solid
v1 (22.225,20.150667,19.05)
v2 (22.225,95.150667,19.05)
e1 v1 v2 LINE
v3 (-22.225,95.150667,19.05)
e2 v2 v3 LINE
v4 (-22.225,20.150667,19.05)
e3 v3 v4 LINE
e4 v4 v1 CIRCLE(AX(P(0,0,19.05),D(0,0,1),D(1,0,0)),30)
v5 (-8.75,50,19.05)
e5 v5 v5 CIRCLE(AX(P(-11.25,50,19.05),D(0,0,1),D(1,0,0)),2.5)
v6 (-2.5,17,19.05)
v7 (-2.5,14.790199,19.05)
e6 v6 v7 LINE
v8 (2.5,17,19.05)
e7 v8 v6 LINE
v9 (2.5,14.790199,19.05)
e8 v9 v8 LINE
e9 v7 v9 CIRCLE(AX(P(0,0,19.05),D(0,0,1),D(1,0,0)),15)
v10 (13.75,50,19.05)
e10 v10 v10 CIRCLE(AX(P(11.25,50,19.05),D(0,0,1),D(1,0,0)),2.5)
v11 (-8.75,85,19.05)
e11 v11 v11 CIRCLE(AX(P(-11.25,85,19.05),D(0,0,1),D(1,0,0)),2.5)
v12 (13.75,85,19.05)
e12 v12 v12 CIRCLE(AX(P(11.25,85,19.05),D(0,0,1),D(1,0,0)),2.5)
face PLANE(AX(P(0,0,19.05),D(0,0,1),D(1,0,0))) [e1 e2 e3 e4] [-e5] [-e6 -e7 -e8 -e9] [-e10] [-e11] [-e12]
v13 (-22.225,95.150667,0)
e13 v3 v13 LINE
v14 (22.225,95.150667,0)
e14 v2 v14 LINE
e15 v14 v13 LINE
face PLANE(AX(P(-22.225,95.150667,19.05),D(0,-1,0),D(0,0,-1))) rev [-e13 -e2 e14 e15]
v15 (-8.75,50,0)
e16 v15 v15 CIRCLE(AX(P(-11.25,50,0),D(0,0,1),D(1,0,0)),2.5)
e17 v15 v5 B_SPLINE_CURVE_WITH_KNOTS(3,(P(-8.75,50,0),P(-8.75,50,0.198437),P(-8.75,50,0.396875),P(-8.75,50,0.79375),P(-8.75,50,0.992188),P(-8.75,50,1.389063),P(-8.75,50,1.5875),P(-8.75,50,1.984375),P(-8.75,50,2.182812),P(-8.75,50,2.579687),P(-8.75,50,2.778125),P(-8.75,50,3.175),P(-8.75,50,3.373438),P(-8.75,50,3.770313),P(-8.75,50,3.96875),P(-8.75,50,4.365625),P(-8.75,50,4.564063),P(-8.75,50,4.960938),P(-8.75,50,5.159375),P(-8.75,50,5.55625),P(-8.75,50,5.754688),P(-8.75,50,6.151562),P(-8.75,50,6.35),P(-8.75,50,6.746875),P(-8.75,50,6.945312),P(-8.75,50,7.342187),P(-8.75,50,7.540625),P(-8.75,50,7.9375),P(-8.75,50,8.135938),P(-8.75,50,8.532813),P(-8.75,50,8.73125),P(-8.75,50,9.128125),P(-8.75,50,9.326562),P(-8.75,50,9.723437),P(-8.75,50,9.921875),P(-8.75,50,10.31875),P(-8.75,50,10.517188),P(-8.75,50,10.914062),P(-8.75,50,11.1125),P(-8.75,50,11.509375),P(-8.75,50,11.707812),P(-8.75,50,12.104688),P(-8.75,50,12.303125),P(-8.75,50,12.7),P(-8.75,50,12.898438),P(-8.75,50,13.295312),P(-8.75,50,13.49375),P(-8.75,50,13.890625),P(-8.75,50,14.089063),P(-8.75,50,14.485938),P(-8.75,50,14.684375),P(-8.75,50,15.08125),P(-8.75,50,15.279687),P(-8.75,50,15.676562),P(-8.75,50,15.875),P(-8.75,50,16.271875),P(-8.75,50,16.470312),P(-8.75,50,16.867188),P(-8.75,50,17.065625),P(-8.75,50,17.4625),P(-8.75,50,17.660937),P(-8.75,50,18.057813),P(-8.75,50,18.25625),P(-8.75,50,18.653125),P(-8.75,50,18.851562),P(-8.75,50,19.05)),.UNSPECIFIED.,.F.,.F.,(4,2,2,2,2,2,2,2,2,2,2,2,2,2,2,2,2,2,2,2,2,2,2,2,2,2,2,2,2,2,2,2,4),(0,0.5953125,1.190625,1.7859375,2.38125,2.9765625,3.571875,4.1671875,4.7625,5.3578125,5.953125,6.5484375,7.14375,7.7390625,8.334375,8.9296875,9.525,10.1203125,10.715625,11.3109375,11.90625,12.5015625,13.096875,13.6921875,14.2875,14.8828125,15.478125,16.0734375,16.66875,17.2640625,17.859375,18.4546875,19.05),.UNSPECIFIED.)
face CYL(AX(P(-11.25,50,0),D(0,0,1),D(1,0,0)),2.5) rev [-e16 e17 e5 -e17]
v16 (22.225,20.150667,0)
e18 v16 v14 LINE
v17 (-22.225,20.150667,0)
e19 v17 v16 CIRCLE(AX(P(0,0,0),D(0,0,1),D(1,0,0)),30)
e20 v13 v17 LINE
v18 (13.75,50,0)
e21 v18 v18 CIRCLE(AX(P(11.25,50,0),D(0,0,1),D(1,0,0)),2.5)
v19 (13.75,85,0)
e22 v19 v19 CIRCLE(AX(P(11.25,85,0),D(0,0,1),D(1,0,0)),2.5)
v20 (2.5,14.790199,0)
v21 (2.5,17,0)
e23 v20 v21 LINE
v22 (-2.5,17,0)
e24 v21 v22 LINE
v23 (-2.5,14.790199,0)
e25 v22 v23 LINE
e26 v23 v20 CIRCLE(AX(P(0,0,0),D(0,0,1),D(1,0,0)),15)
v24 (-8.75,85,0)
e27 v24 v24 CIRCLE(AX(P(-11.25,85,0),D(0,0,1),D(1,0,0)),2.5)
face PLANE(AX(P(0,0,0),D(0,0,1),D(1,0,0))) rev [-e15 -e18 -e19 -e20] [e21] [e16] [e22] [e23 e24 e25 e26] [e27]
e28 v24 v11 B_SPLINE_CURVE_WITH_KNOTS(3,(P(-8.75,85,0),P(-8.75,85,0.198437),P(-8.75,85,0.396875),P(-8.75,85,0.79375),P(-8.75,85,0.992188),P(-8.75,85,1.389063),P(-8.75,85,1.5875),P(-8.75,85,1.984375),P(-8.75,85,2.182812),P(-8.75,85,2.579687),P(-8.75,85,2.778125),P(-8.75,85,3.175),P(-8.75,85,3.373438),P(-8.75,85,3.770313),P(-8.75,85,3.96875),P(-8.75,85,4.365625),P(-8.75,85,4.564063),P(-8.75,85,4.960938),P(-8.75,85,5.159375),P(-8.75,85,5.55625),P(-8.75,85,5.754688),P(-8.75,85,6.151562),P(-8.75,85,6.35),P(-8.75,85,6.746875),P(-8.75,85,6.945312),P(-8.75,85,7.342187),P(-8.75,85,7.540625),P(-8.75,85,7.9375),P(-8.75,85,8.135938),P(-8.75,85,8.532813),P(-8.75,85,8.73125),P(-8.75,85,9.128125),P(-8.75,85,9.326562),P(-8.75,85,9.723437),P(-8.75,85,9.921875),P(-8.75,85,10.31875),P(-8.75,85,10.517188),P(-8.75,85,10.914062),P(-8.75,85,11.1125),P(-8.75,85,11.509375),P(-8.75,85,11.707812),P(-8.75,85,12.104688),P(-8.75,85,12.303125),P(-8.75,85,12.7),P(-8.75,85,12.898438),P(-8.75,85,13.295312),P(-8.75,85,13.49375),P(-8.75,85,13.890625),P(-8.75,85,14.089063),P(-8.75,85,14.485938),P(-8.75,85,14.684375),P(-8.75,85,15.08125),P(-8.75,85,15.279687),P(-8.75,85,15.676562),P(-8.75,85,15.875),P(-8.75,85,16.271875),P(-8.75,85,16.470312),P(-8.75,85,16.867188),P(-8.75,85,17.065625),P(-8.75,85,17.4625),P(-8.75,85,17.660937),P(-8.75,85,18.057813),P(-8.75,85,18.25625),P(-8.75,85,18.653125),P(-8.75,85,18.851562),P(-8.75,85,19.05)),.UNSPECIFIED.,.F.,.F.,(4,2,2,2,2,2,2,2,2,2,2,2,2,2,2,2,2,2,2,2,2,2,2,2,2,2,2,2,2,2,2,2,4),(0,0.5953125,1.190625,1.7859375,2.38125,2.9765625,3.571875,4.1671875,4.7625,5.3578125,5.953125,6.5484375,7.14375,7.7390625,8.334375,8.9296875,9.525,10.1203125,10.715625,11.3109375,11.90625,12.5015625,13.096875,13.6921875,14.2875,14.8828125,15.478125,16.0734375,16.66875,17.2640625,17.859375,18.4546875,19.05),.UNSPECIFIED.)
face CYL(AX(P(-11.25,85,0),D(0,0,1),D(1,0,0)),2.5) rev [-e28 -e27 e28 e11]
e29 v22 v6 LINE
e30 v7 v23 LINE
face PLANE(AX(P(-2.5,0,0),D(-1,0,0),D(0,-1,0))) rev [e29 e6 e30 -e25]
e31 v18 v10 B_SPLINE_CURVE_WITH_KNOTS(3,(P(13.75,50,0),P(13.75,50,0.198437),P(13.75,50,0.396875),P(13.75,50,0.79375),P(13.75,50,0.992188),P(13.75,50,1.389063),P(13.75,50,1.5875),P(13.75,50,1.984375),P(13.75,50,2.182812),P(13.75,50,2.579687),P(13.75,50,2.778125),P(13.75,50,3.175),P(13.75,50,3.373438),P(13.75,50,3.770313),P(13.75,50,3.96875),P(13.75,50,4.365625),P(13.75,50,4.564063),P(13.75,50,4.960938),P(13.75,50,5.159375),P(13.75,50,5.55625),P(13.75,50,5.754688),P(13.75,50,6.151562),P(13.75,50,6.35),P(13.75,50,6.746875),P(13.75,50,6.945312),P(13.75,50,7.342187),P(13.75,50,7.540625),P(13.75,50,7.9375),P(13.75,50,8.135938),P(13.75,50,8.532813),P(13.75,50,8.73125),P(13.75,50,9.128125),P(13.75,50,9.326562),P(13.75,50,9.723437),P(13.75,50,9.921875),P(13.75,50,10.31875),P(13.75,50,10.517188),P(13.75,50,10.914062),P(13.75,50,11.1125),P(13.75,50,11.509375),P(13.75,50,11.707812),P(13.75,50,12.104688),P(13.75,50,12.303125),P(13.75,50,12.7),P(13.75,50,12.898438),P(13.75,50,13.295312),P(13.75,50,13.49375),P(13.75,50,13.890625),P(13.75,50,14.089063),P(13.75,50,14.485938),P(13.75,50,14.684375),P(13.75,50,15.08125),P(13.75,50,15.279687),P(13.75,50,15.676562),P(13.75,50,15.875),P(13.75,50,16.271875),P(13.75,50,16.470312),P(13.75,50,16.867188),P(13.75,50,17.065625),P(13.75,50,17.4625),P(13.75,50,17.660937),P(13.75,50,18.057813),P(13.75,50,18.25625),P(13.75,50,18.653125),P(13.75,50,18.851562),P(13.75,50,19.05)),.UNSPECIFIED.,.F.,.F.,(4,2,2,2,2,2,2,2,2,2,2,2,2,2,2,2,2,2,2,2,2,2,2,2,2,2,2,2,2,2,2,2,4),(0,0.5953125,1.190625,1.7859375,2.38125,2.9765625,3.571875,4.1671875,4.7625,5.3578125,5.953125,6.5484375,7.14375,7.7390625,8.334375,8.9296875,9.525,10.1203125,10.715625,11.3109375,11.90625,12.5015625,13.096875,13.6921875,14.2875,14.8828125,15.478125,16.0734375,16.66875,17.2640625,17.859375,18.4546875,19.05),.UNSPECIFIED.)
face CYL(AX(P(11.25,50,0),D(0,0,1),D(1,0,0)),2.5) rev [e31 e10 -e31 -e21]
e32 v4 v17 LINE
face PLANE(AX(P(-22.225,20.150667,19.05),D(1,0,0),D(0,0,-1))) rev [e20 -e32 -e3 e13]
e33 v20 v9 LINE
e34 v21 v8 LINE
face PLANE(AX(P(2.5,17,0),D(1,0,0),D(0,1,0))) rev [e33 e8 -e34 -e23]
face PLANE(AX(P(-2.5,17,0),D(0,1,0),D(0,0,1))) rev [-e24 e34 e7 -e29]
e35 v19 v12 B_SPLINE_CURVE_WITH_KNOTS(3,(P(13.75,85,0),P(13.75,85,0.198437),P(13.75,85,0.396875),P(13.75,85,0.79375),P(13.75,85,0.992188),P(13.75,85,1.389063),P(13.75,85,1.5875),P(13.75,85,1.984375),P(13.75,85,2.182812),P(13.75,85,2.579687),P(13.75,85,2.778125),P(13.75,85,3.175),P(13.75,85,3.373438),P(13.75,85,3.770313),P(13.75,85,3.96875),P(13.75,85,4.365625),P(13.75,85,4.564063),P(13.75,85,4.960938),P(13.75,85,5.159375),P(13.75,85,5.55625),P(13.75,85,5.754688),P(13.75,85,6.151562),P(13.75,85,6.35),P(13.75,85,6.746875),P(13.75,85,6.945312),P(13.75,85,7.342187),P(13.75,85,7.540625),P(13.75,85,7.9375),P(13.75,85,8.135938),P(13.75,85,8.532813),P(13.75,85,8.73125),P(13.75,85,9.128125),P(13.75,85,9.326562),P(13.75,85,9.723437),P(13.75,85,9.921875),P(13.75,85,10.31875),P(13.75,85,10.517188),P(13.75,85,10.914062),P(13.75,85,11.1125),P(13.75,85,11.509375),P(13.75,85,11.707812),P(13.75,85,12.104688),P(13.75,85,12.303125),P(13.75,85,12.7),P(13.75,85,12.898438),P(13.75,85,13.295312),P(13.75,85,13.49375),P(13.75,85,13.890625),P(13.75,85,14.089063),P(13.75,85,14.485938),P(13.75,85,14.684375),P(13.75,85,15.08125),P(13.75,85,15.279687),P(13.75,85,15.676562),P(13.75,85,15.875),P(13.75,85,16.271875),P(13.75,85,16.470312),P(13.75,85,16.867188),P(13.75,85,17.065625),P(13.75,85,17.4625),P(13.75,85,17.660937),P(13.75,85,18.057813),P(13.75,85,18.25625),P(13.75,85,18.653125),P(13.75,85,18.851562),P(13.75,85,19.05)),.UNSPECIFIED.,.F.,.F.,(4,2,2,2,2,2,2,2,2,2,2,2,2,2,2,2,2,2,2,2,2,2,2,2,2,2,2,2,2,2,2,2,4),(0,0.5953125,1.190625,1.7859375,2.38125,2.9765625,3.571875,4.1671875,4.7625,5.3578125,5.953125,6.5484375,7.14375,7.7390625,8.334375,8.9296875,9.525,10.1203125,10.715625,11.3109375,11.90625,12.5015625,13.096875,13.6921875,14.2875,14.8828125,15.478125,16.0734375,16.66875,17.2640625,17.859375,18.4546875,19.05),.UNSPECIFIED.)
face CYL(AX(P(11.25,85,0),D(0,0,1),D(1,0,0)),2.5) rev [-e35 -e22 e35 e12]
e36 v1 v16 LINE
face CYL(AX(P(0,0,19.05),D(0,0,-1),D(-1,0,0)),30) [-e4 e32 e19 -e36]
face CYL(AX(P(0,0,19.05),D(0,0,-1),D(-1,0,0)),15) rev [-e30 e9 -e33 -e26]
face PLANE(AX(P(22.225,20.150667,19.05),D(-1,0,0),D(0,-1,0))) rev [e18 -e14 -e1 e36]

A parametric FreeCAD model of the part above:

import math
import FreeCAD as App
import Part
import Sketcher
Q = App.Units.Quantity

doc = App.newDocument("Part")
body = doc.addObject("PartDesign::Body", "Body")

# Sketch on XY plane
sketch1 = body.newObject("Sketcher::SketchObject", "Sketch")
sketch1.AttachmentSupport = (doc.getObject("XY_Plane"), [""])
sketch1.MapMode = "FlatFace"
sketch1.addGeometry(Part.LineSegment(App.Vector(-22.225, 95.150667, 0), App.Vector(-22.225, 20.150667, 0)), False)
sketch1.addGeometry(Part.ArcOfCircle(Part.Circle(App.Vector(0, 0, 0), App.Vector(0, 0, 1), 30), math.radians(137.802451), math.radians(402.197549)), False)
sketch1.addGeometry(Part.LineSegment(App.Vector(22.225, 20.150667, 0), App.Vector(22.225, 95.150667, 0)), False)
sketch1.addGeometry(Part.LineSegment(App.Vector(22.225, 95.150667, 0), App.Vector(-22.225, 95.150667, 0)), False)
sketch1.addGeometry(Part.Circle(App.Vector(0, 0, 0), App.Vector(0, 0, 1), 15), False)
sketch1.addConstraint(Sketcher.Constraint("Coincident", 0, 2, 1, 1))
sketch1.addConstraint(Sketcher.Constraint("Coincident", 1, 2, 2, 1))
sketch1.addConstraint(Sketcher.Constraint("Coincident", 2, 2, 3, 1))
sketch1.addConstraint(Sketcher.Constraint("Coincident", 3, 2, 0, 1))
sketch1.addConstraint(Sketcher.Constraint("Vertical", 0))
sketch1.addConstraint(Sketcher.Constraint("Vertical", 2))
sketch1.addConstraint(Sketcher.Constraint("Horizontal", 3))
sketch1.addConstraint(Sketcher.Constraint("Coincident", 1, 3, -1, 1))
sketch1.addConstraint(Sketcher.Constraint("Coincident", 4, 3, -1, 1))
sketch1.addConstraint(Sketcher.Constraint("Horizontal", 0, 2, 1, 2))
sketch1.addConstraint(Sketcher.Constraint("Diameter", 4, Q("30 mm")))
sketch1.addConstraint(Sketcher.Constraint("Radius", 1, Q("30 mm")))
sketch1.addConstraint(Sketcher.Constraint("DistanceY", 0, 2, 0, 1, Q("75 mm")))
sketch1.addConstraint(Sketcher.Constraint("DistanceX", 3, 2, 3, 1, Q("44.45 mm")))
pad1 = body.newObject("PartDesign::Pad", "Pad")
pad1.Profile = sketch1
pad1.Length = 19.05

# Sketch on XY plane
sketch2 = body.newObject("Sketcher::SketchObject", "Sketch001")
sketch2.AttachmentSupport = (doc.getObject("XY_Plane"), [""])
sketch2.MapMode = "FlatFace"
sketch2.AttachmentOffset = App.Placement(App.Vector(0, 0, 19.05), App.Rotation())
sketch2.addGeometry(Part.LineSegment(App.Vector(-2.5, 17, 0), App.Vector(-2.5, 0, 0)), False)
sketch2.addGeometry(Part.LineSegment(App.Vector(-2.5, 0, 0), App.Vector(2.5, 0, 0)), False)
sketch2.addGeometry(Part.LineSegment(App.Vector(2.5, 0, 0), App.Vector(2.5, 17, 0)), False)
sketch2.addGeometry(Part.LineSegment(App.Vector(2.5, 17, 0), App.Vector(-2.5, 17, 0)), False)
sketch2.addConstraint(Sketcher.Constraint("Coincident", 0, 2, 1, 1))
sketch2.addConstraint(Sketcher.Constraint("Coincident", 1, 2, 2, 1))
sketch2.addConstraint(Sketcher.Constraint("Coincident", 2, 2, 3, 1))
sketch2.addConstraint(Sketcher.Constraint("Coincident", 3, 2, 0, 1))
sketch2.addConstraint(Sketcher.Constraint("Vertical", 0))
sketch2.addConstraint(Sketcher.Constraint("Horizontal", 1))
sketch2.addConstraint(Sketcher.Constraint("Vertical", 2))
sketch2.addConstraint(Sketcher.Constraint("Horizontal", 3))
sketch2.addConstraint(Sketcher.Constraint("Symmetric", 0, 2, 1, 2, -1, 1))
sketch2.addConstraint(Sketcher.Constraint("DistanceX", 1, 1, 1, 2, Q("5 mm")))
sketch2.addConstraint(Sketcher.Constraint("DistanceY", 0, 2, 0, 1, Q("17 mm")))
pocket1 = body.newObject("PartDesign::Pocket", "Pocket")
pocket1.Profile = sketch2
pocket1.Type = "ThroughAll"

# Sketch on XY plane
sketch3 = body.newObject("Sketcher::SketchObject", "Sketch002")
sketch3.AttachmentSupport = (doc.getObject("XY_Plane"), [""])
sketch3.MapMode = "FlatFace"
sketch3.AttachmentOffset = App.Placement(App.Vector(0, 0, 19.05), App.Rotation())
sketch3.addGeometry(Part.Circle(App.Vector(-11.25, 85, 0), App.Vector(0, 0, 1), 2.5), False)
sketch3.addGeometry(Part.Circle(App.Vector(11.25, 85, 0), App.Vector(0, 0, 1), 2.5), False)
sketch3.addGeometry(Part.Circle(App.Vector(11.25, 50, 0), App.Vector(0, 0, 1), 2.5), False)
sketch3.addGeometry(Part.Circle(App.Vector(-11.25, 50, 0), App.Vector(0, 0, 1), 2.5), False)
sketch3.addConstraint(Sketcher.Constraint("Equal", 0, 1))
sketch3.addConstraint(Sketcher.Constraint("Equal", 1, 2))
sketch3.addConstraint(Sketcher.Constraint("Equal", 2, 3))
sketch3.addConstraint(Sketcher.Constraint("Symmetric", 0, 3, 1, 3, -2))
sketch3.addConstraint(Sketcher.Constraint("Symmetric", 2, 3, 3, 3, -2))
sketch3.addConstraint(Sketcher.Constraint("Vertical", 1, 3, 2, 3))
sketch3.addConstraint(Sketcher.Constraint("Diameter", 0, Q("5 mm")))
sketch3.addConstraint(Sketcher.Constraint("DistanceY", -1, 1, 0, 3, Q("85 mm")))
sketch3.addConstraint(Sketcher.Constraint("DistanceY", -1, 1, 2, 3, Q("50 mm")))
sketch3.addConstraint(Sketcher.Constraint("DistanceX", 0, 3, 1, 3, Q("22.5 mm")))
pocket2 = body.newObject("PartDesign::Pocket", "Pocket001")
pocket2.Profile = sketch3
pocket2.Type = "ThroughAll"

doc.recompute()
